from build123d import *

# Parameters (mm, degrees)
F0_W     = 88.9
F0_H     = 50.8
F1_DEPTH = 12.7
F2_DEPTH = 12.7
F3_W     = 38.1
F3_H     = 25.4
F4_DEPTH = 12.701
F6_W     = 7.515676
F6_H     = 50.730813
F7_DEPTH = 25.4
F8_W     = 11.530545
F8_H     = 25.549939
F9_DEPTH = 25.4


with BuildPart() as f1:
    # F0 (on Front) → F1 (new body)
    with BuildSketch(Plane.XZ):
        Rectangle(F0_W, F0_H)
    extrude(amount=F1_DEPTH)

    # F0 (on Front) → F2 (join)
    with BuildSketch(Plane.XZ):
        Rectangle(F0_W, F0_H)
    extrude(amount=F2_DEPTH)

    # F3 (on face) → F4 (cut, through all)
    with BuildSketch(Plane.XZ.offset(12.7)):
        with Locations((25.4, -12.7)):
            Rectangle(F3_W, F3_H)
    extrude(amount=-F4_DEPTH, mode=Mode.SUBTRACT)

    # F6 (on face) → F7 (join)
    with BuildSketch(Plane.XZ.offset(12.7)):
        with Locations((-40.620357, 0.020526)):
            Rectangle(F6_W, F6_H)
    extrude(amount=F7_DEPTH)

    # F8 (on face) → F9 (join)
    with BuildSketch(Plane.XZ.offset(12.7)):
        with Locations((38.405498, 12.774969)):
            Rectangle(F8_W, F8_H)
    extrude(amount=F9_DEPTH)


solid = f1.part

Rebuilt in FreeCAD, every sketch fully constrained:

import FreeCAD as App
import Part
import Sketcher

V = App.Vector
Q = App.Units.Quantity


def add_polygon(sketch, points):
    """Adds a closed chain of lines whose ends are joined by coincident constraints."""
    first, n = sketch.GeometryCount, len(points)
    for a, b in zip(points, points[1:] + points[:1]):
        sketch.addGeometry(Part.LineSegment(App.Vector(*a, 0), App.Vector(*b, 0)), False)
    for i in range(n):
        sketch.addConstraint(Sketcher.Constraint("Coincident", first + i, 2, first + (i + 1) % n, 1))

doc = App.newDocument("Part")
body = doc.addObject("PartDesign::Body", "Body")

# Sketch on XZ plane
sketch1 = doc.addObject("Sketcher::SketchObject", "Sketch")
body.addObject(sketch1)
sketch1.AttachmentSupport = (doc.XZ_Plane, [""])
sketch1.MapMode = "FlatFace"
add_polygon(sketch1, [(-44.45, 25.4), (-44.45, -25.4), (44.45, -25.4), (44.45, 25.4)])  # lines 0-3
sketch1.addConstraint([
    Sketcher.Constraint("Vertical", 0),
    Sketcher.Constraint("Horizontal", 1),
    Sketcher.Constraint("Vertical", 2),
    Sketcher.Constraint("Horizontal", 3),
    Sketcher.Constraint("Symmetric", 0, 2, 2, 2, -1, 1),
    Sketcher.Constraint("DistanceY", 0, 2, 0, 1, Q("2 in")),
    Sketcher.Constraint("DistanceX", 1, 1, 1, 2, Q("3.5 in")),
])
pad1 = doc.addObject("PartDesign::Pad", "Pad")
body.addObject(pad1)
pad1.Profile = sketch1
pad1.Length = Q("0.5 in")

# Sketch on XZ plane
sketch2 = doc.addObject("Sketcher::SketchObject", "Sketch001")
body.addObject(sketch2)
sketch2.AttachmentSupport = (doc.XZ_Plane, [""])
sketch2.MapMode = "FlatFace"
add_polygon(sketch2, [(-44.45, 25.4), (-44.45, -25.4), (44.45, -25.4), (44.45, 25.4)])  # lines 0-3
sketch2.addConstraint([
    Sketcher.Constraint("Vertical", 0),
    Sketcher.Constraint("Horizontal", 1),
    Sketcher.Constraint("Vertical", 2),
    Sketcher.Constraint("Horizontal", 3),
    Sketcher.Constraint("Symmetric", 0, 2, 2, 2, -1, 1),
    Sketcher.Constraint("DistanceY", 0, 2, 0, 1, Q("2 in")),
    Sketcher.Constraint("DistanceX", 1, 1, 1, 2, Q("3.5 in")),
])
pad2 = doc.addObject("PartDesign::Pad", "Pad001")
body.addObject(pad2)
pad2.Profile = sketch2
pad2.Length = Q("0.5 in")

# Sketch on XZ plane
sketch3 = doc.addObject("Sketcher::SketchObject", "Sketch002")
body.addObject(sketch3)
sketch3.AttachmentSupport = (doc.XZ_Plane, [""])
sketch3.MapMode = "FlatFace"
sketch3.AttachmentOffset = App.Placement(V(0, 0, 0.5 * 25.4), App.Rotation())
add_polygon(sketch3, [(6.35, 0), (6.35, -25.4), (44.45, -25.4), (44.45, 0)])  # lines 0-3
sketch3.addConstraint([
    Sketcher.Constraint("Vertical", 0),
    Sketcher.Constraint("Horizontal", 1),
    Sketcher.Constraint("Vertical", 2),
    Sketcher.Constraint("Horizontal", 3),
    Sketcher.Constraint("PointOnObject", 2, 2, -1),
    Sketcher.Constraint("DistanceY", 0, 2, 0, 1, Q("1 in")),
    Sketcher.Constraint("DistanceX", 1, 1, 1, 2, Q("1.5 in")),
    Sketcher.Constraint("DistanceX", -1, 1, 0, 2, Q("0.25 in")),
])
pocket1 = doc.addObject("PartDesign::Pocket", "Pocket")
body.addObject(pocket1)
pocket1.Profile = sketch3
pocket1.Type = "ThroughAll"

# Sketch on XZ plane
sketch4 = doc.addObject("Sketcher::SketchObject", "Sketch003")
body.addObject(sketch4)
sketch4.AttachmentSupport = (doc.XZ_Plane, [""])
sketch4.MapMode = "FlatFace"
sketch4.AttachmentOffset = App.Placement(V(0, 0, 0.5 * 25.4), App.Rotation())
add_polygon(sketch4, [(-44.378195, 25.385932), (-44.378195, -25.34488), (-36.862519, -25.34488), (-36.862519, 25.385932)])  # lines 0-3
sketch4.addConstraint([
    Sketcher.Constraint("Vertical", 0),
    Sketcher.Constraint("Horizontal", 1),
    Sketcher.Constraint("Vertical", 2),
    Sketcher.Constraint("Horizontal", 3),
    Sketcher.Constraint("DistanceX", 1, 1, 1, 2, 7.515676),
    Sketcher.Constraint("DistanceY", 0, 2, 0, 1, 50.730813),
    Sketcher.Constraint("DistanceY", 0, 2, -1, 1, 25.34488),
    Sketcher.Constraint("DistanceX", 1, 2, -1, 1, 36.862519),
])
pad3 = doc.addObject("PartDesign::Pad", "Pad002")
body.addObject(pad3)
pad3.Profile = sketch4
pad3.Length = Q("1 in")

# Sketch on XZ plane
sketch5 = doc.addObject("Sketcher::SketchObject", "Sketch004")
body.addObject(sketch5)
sketch5.AttachmentSupport = (doc.XZ_Plane, [""])
sketch5.MapMode = "FlatFace"
sketch5.AttachmentOffset = App.Placement(V(0, 0, 0.5 * 25.4), App.Rotation())
add_polygon(sketch5, [(32.640225, 25.549938), (32.640225, 0), (44.170771, 0), (44.170771, 25.549938)])  # lines 0-3
sketch5.addConstraint([
    Sketcher.Constraint("Vertical", 0),
    Sketcher.Constraint("Horizontal", 1),
    Sketcher.Constraint("Vertical", 2),
    Sketcher.Constraint("Horizontal", 3),
    Sketcher.Constraint("PointOnObject", 0, 2, -1),
    Sketcher.Constraint("DistanceY", 0, 2, 0, 1, 25.549939),
    Sketcher.Constraint("DistanceX", 1, 1, 1, 2, 11.530545),
    Sketcher.Constraint("DistanceX", -1, 1, 1, 2, 44.170771),
])
pad4 = doc.addObject("PartDesign::Pad", "Pad003")
body.addObject(pad4)
pad4.Profile = sketch5
pad4.Length = Q("1 in")

doc.recompute()
